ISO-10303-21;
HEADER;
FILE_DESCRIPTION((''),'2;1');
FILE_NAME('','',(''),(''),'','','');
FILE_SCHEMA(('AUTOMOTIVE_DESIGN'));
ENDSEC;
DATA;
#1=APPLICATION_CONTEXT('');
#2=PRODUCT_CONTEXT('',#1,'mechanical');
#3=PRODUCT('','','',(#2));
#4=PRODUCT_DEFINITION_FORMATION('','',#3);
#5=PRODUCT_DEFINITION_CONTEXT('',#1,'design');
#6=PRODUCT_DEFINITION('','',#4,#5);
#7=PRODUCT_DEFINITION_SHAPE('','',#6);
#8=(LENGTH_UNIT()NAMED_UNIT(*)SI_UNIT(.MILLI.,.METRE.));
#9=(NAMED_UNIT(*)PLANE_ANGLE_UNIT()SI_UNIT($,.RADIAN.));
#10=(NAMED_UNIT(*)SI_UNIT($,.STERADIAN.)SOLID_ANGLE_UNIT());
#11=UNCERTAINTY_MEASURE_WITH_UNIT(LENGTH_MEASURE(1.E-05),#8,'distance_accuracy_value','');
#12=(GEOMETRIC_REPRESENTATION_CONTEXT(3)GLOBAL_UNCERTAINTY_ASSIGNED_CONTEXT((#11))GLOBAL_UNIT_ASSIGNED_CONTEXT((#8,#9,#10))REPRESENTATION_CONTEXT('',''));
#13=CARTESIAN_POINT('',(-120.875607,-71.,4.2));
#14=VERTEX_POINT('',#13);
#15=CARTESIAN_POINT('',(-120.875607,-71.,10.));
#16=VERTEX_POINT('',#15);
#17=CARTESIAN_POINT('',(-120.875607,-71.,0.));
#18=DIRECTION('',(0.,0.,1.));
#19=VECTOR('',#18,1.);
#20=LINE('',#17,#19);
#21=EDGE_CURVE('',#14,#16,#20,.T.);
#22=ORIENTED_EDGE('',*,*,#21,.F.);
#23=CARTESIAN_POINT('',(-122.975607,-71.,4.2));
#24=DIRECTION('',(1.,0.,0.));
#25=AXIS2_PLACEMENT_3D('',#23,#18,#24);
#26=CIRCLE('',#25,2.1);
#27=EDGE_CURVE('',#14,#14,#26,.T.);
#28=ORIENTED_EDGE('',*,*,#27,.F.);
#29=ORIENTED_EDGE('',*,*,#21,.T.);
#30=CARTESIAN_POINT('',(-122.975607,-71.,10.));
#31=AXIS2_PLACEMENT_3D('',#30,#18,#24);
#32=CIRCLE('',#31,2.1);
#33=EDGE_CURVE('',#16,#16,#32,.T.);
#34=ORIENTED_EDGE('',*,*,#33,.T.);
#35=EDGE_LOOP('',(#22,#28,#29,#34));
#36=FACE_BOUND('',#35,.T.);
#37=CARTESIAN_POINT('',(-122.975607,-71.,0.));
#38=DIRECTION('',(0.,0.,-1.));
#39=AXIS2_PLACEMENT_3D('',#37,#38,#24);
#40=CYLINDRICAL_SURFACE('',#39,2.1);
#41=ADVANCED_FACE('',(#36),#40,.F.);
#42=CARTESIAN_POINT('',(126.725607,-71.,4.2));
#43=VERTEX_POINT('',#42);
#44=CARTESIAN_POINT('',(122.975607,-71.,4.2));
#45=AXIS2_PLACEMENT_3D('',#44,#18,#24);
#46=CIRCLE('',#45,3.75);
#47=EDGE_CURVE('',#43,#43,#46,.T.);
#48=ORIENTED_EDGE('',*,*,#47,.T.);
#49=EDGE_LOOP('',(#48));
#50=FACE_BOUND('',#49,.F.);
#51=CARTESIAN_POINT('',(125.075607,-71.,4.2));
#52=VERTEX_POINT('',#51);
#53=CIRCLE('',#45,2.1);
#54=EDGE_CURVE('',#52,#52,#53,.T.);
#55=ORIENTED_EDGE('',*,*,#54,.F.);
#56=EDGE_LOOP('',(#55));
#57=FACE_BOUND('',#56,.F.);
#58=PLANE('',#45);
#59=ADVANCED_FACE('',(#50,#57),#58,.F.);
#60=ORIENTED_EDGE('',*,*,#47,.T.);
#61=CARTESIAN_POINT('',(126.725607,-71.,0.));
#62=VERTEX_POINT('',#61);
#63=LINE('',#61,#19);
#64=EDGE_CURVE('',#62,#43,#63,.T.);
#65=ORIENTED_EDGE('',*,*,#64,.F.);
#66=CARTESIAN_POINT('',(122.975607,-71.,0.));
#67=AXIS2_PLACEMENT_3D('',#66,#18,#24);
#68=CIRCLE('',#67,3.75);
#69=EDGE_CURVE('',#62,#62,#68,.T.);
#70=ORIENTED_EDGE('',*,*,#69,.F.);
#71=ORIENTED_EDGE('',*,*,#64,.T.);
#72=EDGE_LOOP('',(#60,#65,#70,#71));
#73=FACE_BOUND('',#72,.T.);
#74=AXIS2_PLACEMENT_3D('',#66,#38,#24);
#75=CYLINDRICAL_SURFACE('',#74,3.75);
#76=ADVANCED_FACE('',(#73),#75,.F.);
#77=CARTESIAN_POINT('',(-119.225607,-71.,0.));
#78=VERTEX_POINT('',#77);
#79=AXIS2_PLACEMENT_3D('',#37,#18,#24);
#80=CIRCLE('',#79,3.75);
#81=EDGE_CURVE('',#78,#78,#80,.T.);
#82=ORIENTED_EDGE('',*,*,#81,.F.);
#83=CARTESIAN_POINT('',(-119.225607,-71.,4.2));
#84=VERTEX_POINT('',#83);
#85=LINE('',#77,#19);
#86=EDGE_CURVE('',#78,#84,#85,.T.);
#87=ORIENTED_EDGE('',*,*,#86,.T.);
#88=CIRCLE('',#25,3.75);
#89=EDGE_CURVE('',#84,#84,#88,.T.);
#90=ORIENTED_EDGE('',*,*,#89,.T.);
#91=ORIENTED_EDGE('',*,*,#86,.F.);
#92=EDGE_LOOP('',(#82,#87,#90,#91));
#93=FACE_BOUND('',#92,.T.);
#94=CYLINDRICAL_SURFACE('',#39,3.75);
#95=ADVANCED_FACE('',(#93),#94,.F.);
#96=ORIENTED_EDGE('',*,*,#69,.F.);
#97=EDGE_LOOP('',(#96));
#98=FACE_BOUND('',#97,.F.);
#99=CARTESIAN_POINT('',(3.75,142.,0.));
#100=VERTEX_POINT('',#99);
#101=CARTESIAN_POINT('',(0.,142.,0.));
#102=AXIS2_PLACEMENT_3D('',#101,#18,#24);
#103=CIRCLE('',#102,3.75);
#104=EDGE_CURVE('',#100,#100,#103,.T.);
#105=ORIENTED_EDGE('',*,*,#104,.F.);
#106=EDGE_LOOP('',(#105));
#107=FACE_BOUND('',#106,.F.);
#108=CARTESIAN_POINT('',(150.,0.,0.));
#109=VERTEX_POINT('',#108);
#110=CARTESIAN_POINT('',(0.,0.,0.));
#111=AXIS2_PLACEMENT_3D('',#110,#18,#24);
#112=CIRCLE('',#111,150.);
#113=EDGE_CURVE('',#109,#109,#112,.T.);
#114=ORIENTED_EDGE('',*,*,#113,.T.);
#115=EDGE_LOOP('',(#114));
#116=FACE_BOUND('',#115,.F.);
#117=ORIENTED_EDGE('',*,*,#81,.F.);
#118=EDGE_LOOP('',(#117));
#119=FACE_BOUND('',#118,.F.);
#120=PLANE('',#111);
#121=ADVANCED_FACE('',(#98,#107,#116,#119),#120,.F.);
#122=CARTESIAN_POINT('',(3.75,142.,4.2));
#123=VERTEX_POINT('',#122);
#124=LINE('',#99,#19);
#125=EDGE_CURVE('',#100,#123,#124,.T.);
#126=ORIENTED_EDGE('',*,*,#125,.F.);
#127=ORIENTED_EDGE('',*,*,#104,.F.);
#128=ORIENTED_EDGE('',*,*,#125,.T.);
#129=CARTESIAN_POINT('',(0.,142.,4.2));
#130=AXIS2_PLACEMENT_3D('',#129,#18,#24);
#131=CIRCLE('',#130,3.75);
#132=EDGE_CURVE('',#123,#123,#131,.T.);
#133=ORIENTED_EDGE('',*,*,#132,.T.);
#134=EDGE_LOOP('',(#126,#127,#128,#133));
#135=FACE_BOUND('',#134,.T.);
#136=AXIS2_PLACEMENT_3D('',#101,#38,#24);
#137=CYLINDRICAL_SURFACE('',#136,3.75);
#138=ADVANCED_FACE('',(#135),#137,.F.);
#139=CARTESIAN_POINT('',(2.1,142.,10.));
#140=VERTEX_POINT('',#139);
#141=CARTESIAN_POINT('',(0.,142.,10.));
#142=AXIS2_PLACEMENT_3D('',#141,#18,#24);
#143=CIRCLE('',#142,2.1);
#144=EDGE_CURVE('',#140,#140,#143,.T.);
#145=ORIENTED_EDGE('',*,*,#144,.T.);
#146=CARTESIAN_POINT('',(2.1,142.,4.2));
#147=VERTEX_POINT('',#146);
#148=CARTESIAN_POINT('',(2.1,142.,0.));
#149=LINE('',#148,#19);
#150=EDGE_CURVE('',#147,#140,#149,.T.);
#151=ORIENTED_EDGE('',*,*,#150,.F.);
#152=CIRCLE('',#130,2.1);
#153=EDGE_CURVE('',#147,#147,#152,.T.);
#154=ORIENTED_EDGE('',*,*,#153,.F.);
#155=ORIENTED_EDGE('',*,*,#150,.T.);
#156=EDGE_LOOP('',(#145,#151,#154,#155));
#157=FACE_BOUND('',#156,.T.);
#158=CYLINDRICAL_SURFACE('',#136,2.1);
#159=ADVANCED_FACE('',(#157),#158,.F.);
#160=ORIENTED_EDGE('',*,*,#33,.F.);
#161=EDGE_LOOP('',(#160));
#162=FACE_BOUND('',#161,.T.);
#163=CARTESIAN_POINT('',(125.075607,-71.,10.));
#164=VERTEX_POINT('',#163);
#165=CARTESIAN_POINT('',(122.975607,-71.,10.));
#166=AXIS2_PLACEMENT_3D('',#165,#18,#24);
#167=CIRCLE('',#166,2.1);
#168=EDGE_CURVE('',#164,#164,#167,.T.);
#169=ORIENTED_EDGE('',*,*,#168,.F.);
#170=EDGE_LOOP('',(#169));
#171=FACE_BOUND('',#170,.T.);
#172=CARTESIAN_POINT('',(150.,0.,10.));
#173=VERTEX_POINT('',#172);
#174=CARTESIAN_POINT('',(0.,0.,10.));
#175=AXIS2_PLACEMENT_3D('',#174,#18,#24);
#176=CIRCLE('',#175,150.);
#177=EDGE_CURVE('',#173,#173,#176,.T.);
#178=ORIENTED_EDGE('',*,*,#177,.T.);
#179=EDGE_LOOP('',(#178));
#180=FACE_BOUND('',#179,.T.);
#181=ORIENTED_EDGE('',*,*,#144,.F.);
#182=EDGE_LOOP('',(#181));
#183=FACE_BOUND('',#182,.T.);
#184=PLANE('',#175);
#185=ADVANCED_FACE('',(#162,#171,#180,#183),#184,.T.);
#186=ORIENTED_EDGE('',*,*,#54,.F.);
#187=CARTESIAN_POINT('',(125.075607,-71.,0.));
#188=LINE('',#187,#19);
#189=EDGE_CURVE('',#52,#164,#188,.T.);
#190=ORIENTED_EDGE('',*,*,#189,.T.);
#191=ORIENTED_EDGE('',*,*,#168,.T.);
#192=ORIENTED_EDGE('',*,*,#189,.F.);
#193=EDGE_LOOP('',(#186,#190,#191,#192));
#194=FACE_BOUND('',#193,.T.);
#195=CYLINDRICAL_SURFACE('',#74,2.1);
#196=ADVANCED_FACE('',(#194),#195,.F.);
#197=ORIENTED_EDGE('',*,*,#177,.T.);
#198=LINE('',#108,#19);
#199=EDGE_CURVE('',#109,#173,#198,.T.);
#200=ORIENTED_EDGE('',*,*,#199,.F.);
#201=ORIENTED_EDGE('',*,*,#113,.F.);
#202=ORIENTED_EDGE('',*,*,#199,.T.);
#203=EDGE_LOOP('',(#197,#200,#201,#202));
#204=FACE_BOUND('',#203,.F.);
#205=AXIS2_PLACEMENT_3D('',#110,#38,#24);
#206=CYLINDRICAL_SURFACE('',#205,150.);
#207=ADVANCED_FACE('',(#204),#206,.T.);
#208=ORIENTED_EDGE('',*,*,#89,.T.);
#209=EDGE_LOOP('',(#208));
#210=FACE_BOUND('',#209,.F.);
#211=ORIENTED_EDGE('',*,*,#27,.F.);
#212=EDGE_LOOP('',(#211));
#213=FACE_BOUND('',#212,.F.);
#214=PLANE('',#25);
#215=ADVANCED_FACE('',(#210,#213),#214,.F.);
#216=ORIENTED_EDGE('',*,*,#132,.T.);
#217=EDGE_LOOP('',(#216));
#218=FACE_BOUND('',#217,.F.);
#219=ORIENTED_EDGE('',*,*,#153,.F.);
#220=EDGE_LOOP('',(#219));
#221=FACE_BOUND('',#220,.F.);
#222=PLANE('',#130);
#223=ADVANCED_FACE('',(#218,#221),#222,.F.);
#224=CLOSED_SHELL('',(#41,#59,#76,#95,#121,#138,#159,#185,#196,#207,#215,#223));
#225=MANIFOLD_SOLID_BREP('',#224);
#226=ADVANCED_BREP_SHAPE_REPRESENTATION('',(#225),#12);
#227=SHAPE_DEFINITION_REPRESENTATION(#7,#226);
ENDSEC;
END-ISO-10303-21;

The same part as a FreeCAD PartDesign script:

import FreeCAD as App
import Part
import Sketcher
from FreeCAD import Vector
Q = App.Units.Quantity

doc = App.newDocument("Part")
body = doc.addObject("PartDesign::Body", "Body")

# Sketch on XY plane
sketch1 = body.newObject("Sketcher::SketchObject", "Sketch")
sketch1.AttachmentSupport = (doc.getObject("XY_Plane"), [""])
sketch1.MapMode = "FlatFace"
sketch1.addGeometry([
    Part.Circle(Vector(0, 0, 0), Vector(0, 0, 1), 150),
    Part.Circle(Vector(-123, -71, 0), Vector(0, 0, 1), 2.1),
    Part.Circle(Vector(123, -71, 0), Vector(0, 0, 1), 2.1),
    Part.Circle(Vector(0, 142, 0), Vector(0, 0, 1), 2.1),
], False)
sketch1.addConstraint([
    Sketcher.Constraint("Coincident", 0, 3, -1, 1),
    Sketcher.Constraint("Equal", 1, 2),
    Sketcher.Constraint("Equal", 2, 3),
    Sketcher.Constraint("Symmetric", 1, 3, 2, 3, -2),
    Sketcher.Constraint("PointOnObject", 3, 3, -2),
    Sketcher.Constraint("Diameter", 0, Q("300 mm")),
    Sketcher.Constraint("Diameter", 1, Q("4.2 mm")),
    Sketcher.Constraint("DistanceY", 1, 3, -1, 1, Q("71 mm")),
    Sketcher.Constraint("DistanceY", -1, 1, 3, 3, Q("142 mm")),
    Sketcher.Constraint("DistanceX", 1, 3, -1, 1, Q("122.975607 mm")),
])
pad1 = body.newObject("PartDesign::Pad", "Pad")
pad1.Profile = sketch1
pad1.Length = 10

# Sketch on XY plane
sketch2 = body.newObject("Sketcher::SketchObject", "Sketch001")
sketch2.AttachmentSupport = (doc.getObject("XY_Plane"), [""])
sketch2.MapMode = "FlatFace"
sketch2.addGeometry([
    Part.Circle(Vector(-123, -71, 0), Vector(0, 0, 1), 3.8),  # 0
    Part.Circle(Vector(-123, -71, 0), Vector(0, 0, 1), 2.1),  # 1
    Part.Circle(Vector(123, -71, 0), Vector(0, 0, 1), 3.8),  # 2
    Part.Circle(Vector(123, -71, 0), Vector(0, 0, 1), 2.1),  # 3
    Part.Circle(Vector(0, 142, 0), Vector(0, 0, 1), 3.8),  # 4
    Part.Circle(Vector(0, 142, 0), Vector(0, 0, 1), 2.1),  # 5
], False)
sketch2.addConstraint([
    Sketcher.Constraint("Coincident", 1, 3, 0, 3),
    Sketcher.Constraint("Coincident", 3, 3, 2, 3),
    Sketcher.Constraint("Coincident", 5, 3, 4, 3),
    Sketcher.Constraint("Equal", 0, 2),
    Sketcher.Constraint("Equal", 1, 3),
    Sketcher.Constraint("Equal", 2, 4),
    Sketcher.Constraint("Equal", 3, 5),
    Sketcher.Constraint("Symmetric", 0, 3, 2, 3, -2),
    Sketcher.Constraint("PointOnObject", 4, 3, -2),
    Sketcher.Constraint("Diameter", 0, Q("7.5 mm")),
    Sketcher.Constraint("Diameter", 1, Q("4.2 mm")),
    Sketcher.Constraint("DistanceY", 0, 3, -1, 1, Q("71 mm")),
    Sketcher.Constraint("DistanceY", -1, 1, 4, 3, Q("142 mm")),
    Sketcher.Constraint("DistanceX", 0, 3, -1, 1, Q("122.975607 mm")),
])
pocket1 = body.newObject("PartDesign::Pocket", "Pocket")
pocket1.Profile = sketch2
pocket1.Length = 4.2
pocket1.Reversed = True

doc.recompute()
